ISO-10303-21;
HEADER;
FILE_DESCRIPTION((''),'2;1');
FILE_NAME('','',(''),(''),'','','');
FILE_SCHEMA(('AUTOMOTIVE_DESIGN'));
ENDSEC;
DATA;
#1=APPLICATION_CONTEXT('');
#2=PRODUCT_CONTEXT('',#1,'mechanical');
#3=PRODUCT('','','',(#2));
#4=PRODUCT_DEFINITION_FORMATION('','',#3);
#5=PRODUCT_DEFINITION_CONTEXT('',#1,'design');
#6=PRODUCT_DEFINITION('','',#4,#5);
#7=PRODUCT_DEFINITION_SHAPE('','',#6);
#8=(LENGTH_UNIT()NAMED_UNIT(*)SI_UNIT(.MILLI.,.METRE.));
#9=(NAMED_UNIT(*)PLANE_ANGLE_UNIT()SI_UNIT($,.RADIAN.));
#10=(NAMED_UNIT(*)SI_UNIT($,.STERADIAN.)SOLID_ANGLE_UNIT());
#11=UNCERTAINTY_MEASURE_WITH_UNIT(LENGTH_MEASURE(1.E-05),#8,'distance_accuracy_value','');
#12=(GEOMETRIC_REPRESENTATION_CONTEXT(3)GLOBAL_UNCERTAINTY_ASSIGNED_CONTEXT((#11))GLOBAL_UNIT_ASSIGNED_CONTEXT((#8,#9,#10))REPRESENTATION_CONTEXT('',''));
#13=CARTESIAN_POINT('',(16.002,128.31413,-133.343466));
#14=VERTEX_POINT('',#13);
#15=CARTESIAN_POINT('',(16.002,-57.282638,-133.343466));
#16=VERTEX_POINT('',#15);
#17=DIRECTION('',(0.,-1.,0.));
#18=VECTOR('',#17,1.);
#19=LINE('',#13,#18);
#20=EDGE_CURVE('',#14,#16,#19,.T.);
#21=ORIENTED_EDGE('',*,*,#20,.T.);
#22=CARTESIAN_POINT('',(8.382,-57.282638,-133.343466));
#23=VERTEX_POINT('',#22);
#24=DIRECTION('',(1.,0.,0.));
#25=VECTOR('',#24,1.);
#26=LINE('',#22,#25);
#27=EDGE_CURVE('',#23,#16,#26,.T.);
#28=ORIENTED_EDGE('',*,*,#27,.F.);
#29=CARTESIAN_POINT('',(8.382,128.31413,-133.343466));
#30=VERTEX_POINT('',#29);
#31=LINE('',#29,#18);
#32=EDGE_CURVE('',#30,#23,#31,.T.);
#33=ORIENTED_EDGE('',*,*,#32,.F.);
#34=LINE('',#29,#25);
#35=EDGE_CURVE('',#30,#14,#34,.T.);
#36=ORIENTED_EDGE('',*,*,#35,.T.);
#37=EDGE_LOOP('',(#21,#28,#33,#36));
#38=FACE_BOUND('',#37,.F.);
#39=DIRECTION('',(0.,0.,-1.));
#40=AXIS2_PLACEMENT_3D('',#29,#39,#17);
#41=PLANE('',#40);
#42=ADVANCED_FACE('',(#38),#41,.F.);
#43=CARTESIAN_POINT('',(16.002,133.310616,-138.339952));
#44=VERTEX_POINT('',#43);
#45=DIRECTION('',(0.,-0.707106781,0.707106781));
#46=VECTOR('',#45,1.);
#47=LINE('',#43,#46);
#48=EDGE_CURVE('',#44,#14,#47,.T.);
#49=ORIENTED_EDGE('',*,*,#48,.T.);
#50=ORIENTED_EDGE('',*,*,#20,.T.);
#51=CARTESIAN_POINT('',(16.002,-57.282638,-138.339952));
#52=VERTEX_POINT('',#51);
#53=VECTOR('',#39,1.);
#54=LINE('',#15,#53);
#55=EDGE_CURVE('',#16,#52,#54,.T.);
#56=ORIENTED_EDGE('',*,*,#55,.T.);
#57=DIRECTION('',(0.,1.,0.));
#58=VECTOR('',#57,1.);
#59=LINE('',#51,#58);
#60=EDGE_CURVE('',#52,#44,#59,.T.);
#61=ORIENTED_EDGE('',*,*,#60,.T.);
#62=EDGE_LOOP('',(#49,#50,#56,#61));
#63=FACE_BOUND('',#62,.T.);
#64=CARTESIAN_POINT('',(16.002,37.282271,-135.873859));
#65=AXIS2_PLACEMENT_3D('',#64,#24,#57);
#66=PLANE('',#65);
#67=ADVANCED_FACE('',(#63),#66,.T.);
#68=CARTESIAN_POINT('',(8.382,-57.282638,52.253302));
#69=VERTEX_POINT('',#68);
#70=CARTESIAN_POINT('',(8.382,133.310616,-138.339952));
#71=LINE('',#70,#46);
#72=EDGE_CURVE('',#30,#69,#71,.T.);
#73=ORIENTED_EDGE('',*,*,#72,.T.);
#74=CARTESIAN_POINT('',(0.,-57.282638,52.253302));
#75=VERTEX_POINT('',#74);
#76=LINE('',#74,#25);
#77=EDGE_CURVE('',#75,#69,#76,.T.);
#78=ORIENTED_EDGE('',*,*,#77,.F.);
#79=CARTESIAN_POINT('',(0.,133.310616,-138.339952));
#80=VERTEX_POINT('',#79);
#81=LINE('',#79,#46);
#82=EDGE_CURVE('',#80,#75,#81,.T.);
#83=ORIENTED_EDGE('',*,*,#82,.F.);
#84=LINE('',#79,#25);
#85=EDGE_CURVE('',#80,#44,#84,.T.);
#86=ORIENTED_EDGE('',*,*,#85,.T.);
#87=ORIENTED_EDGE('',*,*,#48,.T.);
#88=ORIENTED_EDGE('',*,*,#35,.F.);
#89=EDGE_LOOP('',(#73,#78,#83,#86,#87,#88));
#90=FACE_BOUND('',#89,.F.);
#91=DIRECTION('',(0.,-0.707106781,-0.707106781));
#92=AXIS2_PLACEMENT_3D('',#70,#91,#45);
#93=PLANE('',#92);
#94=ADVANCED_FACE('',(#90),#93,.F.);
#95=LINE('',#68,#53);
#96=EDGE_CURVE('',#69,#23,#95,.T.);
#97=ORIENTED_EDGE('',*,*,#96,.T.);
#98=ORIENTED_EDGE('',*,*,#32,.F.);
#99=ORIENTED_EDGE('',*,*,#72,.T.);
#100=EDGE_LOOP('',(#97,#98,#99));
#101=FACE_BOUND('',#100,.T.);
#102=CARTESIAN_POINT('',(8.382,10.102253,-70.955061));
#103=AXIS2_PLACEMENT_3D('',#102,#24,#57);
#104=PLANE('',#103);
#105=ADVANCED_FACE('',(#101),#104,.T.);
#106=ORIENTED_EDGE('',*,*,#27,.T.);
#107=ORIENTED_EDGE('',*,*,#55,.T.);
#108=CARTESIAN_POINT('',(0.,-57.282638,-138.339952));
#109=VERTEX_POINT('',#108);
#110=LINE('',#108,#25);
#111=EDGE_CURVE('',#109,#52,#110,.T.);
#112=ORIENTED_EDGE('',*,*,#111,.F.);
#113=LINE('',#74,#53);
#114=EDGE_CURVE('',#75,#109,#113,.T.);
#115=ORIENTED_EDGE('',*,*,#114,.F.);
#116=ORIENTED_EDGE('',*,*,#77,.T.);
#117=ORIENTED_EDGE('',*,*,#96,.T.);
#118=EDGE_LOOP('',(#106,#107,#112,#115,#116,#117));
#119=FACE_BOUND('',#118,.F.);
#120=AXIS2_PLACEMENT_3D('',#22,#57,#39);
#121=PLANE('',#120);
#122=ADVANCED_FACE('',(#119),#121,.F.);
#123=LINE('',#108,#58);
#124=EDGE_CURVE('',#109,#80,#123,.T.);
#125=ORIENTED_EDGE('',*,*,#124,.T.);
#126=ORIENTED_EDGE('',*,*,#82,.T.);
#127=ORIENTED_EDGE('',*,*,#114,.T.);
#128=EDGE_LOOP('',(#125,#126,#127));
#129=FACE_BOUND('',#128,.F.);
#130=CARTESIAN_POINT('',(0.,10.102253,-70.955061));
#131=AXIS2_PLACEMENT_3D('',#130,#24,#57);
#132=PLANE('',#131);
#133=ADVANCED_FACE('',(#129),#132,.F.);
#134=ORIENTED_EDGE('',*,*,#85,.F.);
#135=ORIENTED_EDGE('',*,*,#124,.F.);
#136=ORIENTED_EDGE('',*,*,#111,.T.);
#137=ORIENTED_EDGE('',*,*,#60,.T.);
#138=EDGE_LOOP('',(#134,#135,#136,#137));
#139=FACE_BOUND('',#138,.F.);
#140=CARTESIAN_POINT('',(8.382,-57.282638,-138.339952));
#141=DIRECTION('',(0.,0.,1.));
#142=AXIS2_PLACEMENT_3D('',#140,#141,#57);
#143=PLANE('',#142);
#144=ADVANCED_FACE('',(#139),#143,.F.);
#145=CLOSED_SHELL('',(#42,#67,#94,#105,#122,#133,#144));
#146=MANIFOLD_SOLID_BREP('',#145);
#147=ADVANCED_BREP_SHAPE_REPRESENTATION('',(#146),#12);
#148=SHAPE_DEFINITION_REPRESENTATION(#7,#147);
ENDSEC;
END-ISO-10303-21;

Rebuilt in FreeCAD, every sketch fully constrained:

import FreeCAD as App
import Part
import Sketcher

V = App.Vector
Q = App.Units.Quantity


def add_polygon(sketch, points):
    """Adds a closed chain of lines whose ends are joined by coincident constraints."""
    first, n = sketch.GeometryCount, len(points)
    for a, b in zip(points, points[1:] + points[:1]):
        sketch.addGeometry(Part.LineSegment(App.Vector(*a, 0), App.Vector(*b, 0)), False)
    for i in range(n):
        sketch.addConstraint(Sketcher.Constraint("Coincident", first + i, 2, first + (i + 1) % n, 1))

doc = App.newDocument("Part")
body = doc.addObject("PartDesign::Body", "Body")

sketch1 = body.newObject("Sketcher::SketchObject", "Sketch")
sketch1.AttachmentSupport = (doc.getObject("YZ_Plane"), [""])
sketch1.MapMode = "FlatFace"
add_polygon(sketch1, [(133, -138), (-57, 52), (-57, -138)])
sketch1.addConstraint([
    Sketcher.Constraint("Vertical", 1),
    Sketcher.Constraint("Horizontal", 2),
    Sketcher.Constraint("Equal", 2, 1),
    Sketcher.Constraint("DistanceY", -1, 1, 0, 2, Q("52.253302 mm")),
    Sketcher.Constraint("DistanceX", 2, 1, 2, 2, Q("190.593254 mm")),
    Sketcher.Constraint("DistanceX", 0, 2, -1, 1, Q("57.282638 mm")),
])
pad1 = body.newObject("PartDesign::Pad", "Pad")
pad1.Profile = sketch1
pad1.Length = Q("0.33 in")

sketch2 = body.newObject("Sketcher::SketchObject", "Sketch001")
sketch2.AttachmentSupport = (doc.getObject("YZ_Plane"), [""])
sketch2.MapMode = "FlatFace"
sketch2.AttachmentOffset = App.Placement(V(0, 0, 0.33 * 25.4), App.Rotation())
add_polygon(sketch2, [(-57.3, -133.3), (-57.3, -138.3), (133.3, -138.3), (128.3, -133.3)])
sketch2.addConstraint([
    Sketcher.Constraint("Vertical", 0),
    Sketcher.Constraint("Horizontal", 1),
    Sketcher.Constraint("Horizontal", 3),
    Sketcher.Constraint("Angle", 2, Q("135 deg")),
    Sketcher.Constraint("Distance", 2, Q("7.066098 mm")),
    Sketcher.Constraint("DistanceX", 3, 2, 3, 1, Q("185.596768 mm")),
    Sketcher.Constraint("DistanceX", -1, 1, 2, 2, Q("128.31413 mm")),
    Sketcher.Constraint("DistanceY", 0, 2, -1, 1, Q("138.339952 mm")),
])
pad2 = body.newObject("PartDesign::Pad", "Pad001")
pad2.Profile = sketch2
pad2.Length = Q("0.3 in")

doc.recompute()
